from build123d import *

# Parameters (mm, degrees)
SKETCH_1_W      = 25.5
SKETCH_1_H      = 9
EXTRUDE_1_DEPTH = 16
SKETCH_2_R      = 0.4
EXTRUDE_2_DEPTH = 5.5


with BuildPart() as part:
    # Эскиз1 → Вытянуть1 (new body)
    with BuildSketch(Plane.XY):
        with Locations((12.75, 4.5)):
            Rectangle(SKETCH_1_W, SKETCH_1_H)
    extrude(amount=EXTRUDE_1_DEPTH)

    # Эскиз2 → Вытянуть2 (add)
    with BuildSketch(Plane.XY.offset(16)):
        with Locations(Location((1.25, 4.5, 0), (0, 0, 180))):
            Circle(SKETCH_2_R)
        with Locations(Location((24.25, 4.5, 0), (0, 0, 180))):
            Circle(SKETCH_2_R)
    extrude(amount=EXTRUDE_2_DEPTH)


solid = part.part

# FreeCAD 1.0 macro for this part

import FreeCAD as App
import Part
import Sketcher
Q = App.Units.Quantity


def add_polygon(sketch, points):
    """Adds a closed chain of lines whose ends are joined by coincident constraints."""
    first, n = sketch.GeometryCount, len(points)
    for a, b in zip(points, points[1:] + points[:1]):
        sketch.addGeometry(Part.LineSegment(App.Vector(*a, 0), App.Vector(*b, 0)), False)
    for i in range(n):
        sketch.addConstraint(Sketcher.Constraint("Coincident", first + i, 2, first + (i + 1) % n, 1))

doc = App.newDocument("Part")
body = doc.addObject("PartDesign::Body", "Body")

# Sketch on XY plane
sketch1 = body.newObject("Sketcher::SketchObject", "Sketch")
sketch1.AttachmentSupport = (doc.getObject("XY_Plane"), [""])
sketch1.MapMode = "FlatFace"
add_polygon(sketch1, [(0, 9), (0, 0), (26, 0), (26, 9)])  # lines 0-3
sketch1.addConstraint([
    Sketcher.Constraint("Vertical", 0),
    Sketcher.Constraint("Horizontal", 1),
    Sketcher.Constraint("Vertical", 2),
    Sketcher.Constraint("Horizontal", 3),
    Sketcher.Constraint("Coincident", 0, 2, -1, 1),
    Sketcher.Constraint("DistanceY", 0, 2, 0, 1, Q("9 mm")),
    Sketcher.Constraint("DistanceX", 1, 1, 1, 2, Q("25.5 mm")),
])
pad1 = body.newObject("PartDesign::Pad", "Pad")
pad1.Profile = sketch1
pad1.Length = 16

# Sketch on XY plane
sketch2 = body.newObject("Sketcher::SketchObject", "Sketch001")
sketch2.AttachmentSupport = (doc.getObject("XY_Plane"), [""])
sketch2.MapMode = "FlatFace"
sketch2.AttachmentOffset = App.Placement(App.Vector(0, 0, 16), App.Rotation())
sketch2.addGeometry([
    Part.Circle(App.Vector(1.25, 4.5, 0), App.Vector(0, 0, 1), 0.4),
    Part.Circle(App.Vector(24.25, 4.5, 0), App.Vector(0, 0, 1), 0.4),
], False)
sketch2.addConstraint([
    Sketcher.Constraint("Equal", 0, 1),
    Sketcher.Constraint("Horizontal", 0, 3, 1, 3),
    Sketcher.Constraint("Diameter", 0, Q("0.8 mm")),
    Sketcher.Constraint("DistanceX", 0, 3, 1, 3, Q("23 mm")),
    Sketcher.Constraint("DistanceY", -1, 1, 0, 3, Q("4.5 mm")),
    Sketcher.Constraint("DistanceX", -1, 1, 0, 3, Q("1.25 mm")),
])
pad2 = body.newObject("PartDesign::Pad", "Pad001")
pad2.Profile = sketch2
pad2.Length = 5.5

doc.recompute()
